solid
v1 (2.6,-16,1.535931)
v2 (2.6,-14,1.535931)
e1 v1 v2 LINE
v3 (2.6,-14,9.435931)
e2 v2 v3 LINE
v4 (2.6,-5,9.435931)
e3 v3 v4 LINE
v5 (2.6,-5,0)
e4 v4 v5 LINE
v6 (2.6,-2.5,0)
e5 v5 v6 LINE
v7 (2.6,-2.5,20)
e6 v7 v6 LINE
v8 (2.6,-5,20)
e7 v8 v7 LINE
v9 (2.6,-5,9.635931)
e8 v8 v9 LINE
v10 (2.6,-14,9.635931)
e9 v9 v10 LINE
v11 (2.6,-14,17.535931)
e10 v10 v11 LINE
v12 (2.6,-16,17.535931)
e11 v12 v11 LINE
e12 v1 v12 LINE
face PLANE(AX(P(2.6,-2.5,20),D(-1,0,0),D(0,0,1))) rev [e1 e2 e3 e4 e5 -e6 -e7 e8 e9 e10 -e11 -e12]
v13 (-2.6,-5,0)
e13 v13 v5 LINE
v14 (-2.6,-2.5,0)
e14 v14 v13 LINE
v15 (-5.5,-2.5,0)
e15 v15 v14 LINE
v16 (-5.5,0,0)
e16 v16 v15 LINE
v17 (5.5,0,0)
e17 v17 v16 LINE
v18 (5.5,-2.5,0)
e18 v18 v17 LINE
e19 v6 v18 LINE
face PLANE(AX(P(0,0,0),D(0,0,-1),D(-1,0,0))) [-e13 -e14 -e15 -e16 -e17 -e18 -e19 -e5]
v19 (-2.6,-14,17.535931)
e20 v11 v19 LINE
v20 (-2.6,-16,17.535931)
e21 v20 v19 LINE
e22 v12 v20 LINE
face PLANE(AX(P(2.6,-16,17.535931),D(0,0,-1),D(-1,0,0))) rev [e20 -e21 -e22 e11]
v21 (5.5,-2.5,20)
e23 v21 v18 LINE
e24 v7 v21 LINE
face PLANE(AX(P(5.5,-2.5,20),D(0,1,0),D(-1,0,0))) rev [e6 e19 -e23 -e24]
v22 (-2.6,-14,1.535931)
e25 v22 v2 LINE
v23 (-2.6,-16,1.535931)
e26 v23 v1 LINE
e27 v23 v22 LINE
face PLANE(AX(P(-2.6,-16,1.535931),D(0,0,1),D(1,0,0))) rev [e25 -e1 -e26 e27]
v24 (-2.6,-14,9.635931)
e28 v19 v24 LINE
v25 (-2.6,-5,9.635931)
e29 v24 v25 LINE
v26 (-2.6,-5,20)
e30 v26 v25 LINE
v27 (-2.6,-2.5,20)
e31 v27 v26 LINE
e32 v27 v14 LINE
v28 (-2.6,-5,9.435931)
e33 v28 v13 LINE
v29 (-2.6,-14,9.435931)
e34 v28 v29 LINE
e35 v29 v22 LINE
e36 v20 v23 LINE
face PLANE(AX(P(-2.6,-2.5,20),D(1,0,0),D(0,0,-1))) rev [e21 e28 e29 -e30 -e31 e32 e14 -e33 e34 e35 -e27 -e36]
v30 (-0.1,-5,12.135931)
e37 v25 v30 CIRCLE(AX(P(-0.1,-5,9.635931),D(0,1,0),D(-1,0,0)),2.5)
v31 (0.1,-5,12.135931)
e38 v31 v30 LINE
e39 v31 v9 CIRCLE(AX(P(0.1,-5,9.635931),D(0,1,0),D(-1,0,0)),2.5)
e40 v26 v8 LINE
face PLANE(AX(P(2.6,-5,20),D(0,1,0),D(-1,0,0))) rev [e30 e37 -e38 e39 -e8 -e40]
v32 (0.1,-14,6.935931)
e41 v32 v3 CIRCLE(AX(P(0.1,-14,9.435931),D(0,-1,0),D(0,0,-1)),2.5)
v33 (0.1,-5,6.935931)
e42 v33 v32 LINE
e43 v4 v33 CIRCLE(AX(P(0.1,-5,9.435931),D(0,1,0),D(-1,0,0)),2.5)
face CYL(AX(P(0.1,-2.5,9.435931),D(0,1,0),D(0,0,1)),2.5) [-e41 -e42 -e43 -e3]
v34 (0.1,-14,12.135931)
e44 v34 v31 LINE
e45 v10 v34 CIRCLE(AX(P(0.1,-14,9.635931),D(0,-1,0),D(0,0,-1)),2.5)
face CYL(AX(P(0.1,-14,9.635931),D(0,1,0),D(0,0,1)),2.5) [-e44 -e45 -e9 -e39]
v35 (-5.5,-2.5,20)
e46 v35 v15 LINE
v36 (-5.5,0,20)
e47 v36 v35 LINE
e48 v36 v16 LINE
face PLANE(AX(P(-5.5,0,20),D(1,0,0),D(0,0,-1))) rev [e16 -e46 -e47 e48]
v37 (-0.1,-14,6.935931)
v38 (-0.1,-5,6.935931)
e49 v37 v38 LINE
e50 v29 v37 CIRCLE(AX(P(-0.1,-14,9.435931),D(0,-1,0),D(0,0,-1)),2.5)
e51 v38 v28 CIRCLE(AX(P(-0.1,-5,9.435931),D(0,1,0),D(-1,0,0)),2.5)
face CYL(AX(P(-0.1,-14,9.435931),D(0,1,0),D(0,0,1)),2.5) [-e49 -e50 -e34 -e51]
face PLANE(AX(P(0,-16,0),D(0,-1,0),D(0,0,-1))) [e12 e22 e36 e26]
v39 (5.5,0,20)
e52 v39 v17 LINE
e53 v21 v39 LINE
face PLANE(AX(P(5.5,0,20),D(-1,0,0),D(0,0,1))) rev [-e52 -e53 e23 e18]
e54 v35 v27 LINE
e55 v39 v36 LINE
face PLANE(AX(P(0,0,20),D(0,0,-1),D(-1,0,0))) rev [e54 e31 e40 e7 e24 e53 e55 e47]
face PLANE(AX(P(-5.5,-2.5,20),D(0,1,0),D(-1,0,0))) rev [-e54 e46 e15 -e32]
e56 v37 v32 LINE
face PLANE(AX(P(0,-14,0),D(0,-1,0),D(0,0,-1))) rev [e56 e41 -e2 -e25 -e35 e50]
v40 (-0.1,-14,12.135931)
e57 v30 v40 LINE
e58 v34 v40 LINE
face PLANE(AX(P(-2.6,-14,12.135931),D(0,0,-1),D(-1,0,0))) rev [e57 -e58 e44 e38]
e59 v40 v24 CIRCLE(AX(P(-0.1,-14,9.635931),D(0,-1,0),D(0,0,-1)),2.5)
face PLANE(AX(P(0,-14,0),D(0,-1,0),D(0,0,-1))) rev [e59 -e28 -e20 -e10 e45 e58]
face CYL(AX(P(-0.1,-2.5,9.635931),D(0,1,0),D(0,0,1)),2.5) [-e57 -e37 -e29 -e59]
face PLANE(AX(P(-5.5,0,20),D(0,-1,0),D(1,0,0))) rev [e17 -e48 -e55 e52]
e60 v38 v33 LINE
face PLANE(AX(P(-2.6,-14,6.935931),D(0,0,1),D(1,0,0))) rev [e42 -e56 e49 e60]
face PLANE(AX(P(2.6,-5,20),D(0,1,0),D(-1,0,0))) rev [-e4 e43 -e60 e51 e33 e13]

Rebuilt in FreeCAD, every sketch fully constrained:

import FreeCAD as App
import Part
import Sketcher

V = App.Vector
Q = App.Units.Quantity


def edges_at(feature, points):
    """Names of the edges that pass closest to the given points."""
    edges = feature.Shape.Edges
    near = lambda p: min(range(len(edges)), key=lambda i: edges[i].distToShape(Part.Vertex(*p))[0])
    return sorted({f"Edge{near(p) + 1}" for p in points})

doc = App.newDocument("Part")
body = doc.addObject("PartDesign::Body", "Body")

# Sketch on XY plane
sketch1 = doc.addObject("Sketcher::SketchObject", "Sketch")
body.addObject(sketch1)
sketch1.AttachmentSupport = (doc.XY_Plane, [""])
sketch1.MapMode = "FlatFace"
sketch1.addGeometry([
    Part.LineSegment(V(5.5, 0, 0), V(-5.5, 0, 0)),  # 0
    Part.LineSegment(V(-5.5, 0, 0), V(-5.5, -2.5, 0)),  # 1
    Part.LineSegment(V(-5.5, -2.5, 0), V(-2.6, -2.5, 0)),  # 2
    Part.LineSegment(V(-2.6, -2.5, 0), V(-2.6, -5, 0)),  # 3
    Part.LineSegment(V(-2.6, -5, 0), V(2.6, -5, 0)),  # 4
    Part.LineSegment(V(2.6, -5, 0), V(2.6, -2.5, 0)),  # 5
    Part.LineSegment(V(2.6, -2.5, 0), V(5.5, -2.5, 0)),  # 6
    Part.LineSegment(V(5.5, -2.5, 0), V(5.5, 0, 0)),  # 7
], False)
sketch1.addConstraint([
    Sketcher.Constraint("Coincident", 0, 2, 1, 1),
    Sketcher.Constraint("Coincident", 1, 2, 2, 1),
    Sketcher.Constraint("Coincident", 2, 2, 3, 1),
    Sketcher.Constraint("Coincident", 3, 2, 4, 1),
    Sketcher.Constraint("Coincident", 4, 2, 5, 1),
    Sketcher.Constraint("Coincident", 5, 2, 6, 1),
    Sketcher.Constraint("Coincident", 6, 2, 7, 1),
    Sketcher.Constraint("Coincident", 7, 2, 0, 1),
    Sketcher.Constraint("Horizontal", 0),
    Sketcher.Constraint("Vertical", 1),
    Sketcher.Constraint("Horizontal", 2),
    Sketcher.Constraint("Vertical", 3),
    Sketcher.Constraint("Horizontal", 4),
    Sketcher.Constraint("Vertical", 5),
    Sketcher.Constraint("Horizontal", 6),
    Sketcher.Constraint("Vertical", 7),
    Sketcher.Constraint("Symmetric", 0, 2, 7, 2, -1, 1),
    Sketcher.Constraint("Symmetric", 2, 2, 5, 2, -2),
    Sketcher.Constraint("Equal", 1, 3),
    Sketcher.Constraint("DistanceX", 0, 2, 0, 1, Q("11 mm")),
    Sketcher.Constraint("DistanceX", 2, 1, 2, 2, Q("2.9 mm")),
    Sketcher.Constraint("DistanceY", 1, 2, 1, 1, Q("2.5 mm")),
])
pad1 = doc.addObject("PartDesign::Pad", "Pad")
body.addObject(pad1)
pad1.Profile = sketch1
pad1.Length = 20

# Sketch on XZ plane
sketch2 = doc.addObject("Sketcher::SketchObject", "Sketch001")
body.addObject(sketch2)
sketch2.AttachmentSupport = (doc.XZ_Plane, [""])
sketch2.MapMode = "FlatFace"
sketch2.AttachmentOffset = App.Placement(V(0, 0, 5), App.Rotation())
sketch2.addGeometry([
    Part.LineSegment(V(-3, 12, 0), V(-3, 7, 0)),
    Part.LineSegment(V(-3, 7, 0), V(3, 7, 0)),
    Part.LineSegment(V(3, 7, 0), V(3, 12, 0)),
    Part.LineSegment(V(3, 12, 0), V(-3, 12, 0)),
], False)
sketch2.addConstraint([
    Sketcher.Constraint("Coincident", 0, 2, 1, 1),
    Sketcher.Constraint("Coincident", 1, 2, 2, 1),
    Sketcher.Constraint("Coincident", 2, 2, 3, 1),
    Sketcher.Constraint("Coincident", 3, 2, 0, 1),
    Sketcher.Constraint("Vertical", 0),
    Sketcher.Constraint("Horizontal", 1),
    Sketcher.Constraint("Vertical", 2),
    Sketcher.Constraint("Horizontal", 3),
    Sketcher.Constraint("Equal", 3, 0),
    Sketcher.Constraint("DistanceX", 1, 1, 1, 2, Q("5.2 mm")),
    Sketcher.Constraint("DistanceX", 0, 2, -1, 1, Q("2.6 mm")),
    Sketcher.Constraint("DistanceY", -1, 1, 0, 2, Q("6.935931 mm")),
])
pad2 = doc.addObject("PartDesign::Pad", "Pad001")
body.addObject(pad2)
pad2.Profile = sketch2
pad2.Length = 9

# Sketch on XZ plane
sketch3 = doc.addObject("Sketcher::SketchObject", "Sketch002")
body.addObject(sketch3)
sketch3.AttachmentSupport = (doc.XZ_Plane, [""])
sketch3.MapMode = "FlatFace"
sketch3.AttachmentOffset = App.Placement(V(0, 0, 14), App.Rotation())
sketch3.addGeometry([
    Part.LineSegment(V(-3, 18, 0), V(-3, 2, 0)),
    Part.LineSegment(V(-3, 2, 0), V(3, 2, 0)),
    Part.LineSegment(V(3, 2, 0), V(3, 18, 0)),
    Part.LineSegment(V(3, 18, 0), V(-3, 18, 0)),
], False)
sketch3.addConstraint([
    Sketcher.Constraint("Coincident", 0, 2, 1, 1),
    Sketcher.Constraint("Coincident", 1, 2, 2, 1),
    Sketcher.Constraint("Coincident", 2, 2, 3, 1),
    Sketcher.Constraint("Coincident", 3, 2, 0, 1),
    Sketcher.Constraint("Vertical", 0),
    Sketcher.Constraint("Horizontal", 1),
    Sketcher.Constraint("Vertical", 2),
    Sketcher.Constraint("Horizontal", 3),
    Sketcher.Constraint("DistanceY", 0, 2, 0, 1, Q("16 mm")),
    Sketcher.Constraint("DistanceX", 1, 1, 1, 2, Q("5.2 mm")),
    Sketcher.Constraint("DistanceX", 0, 2, -1, 1, Q("2.6 mm")),
    Sketcher.Constraint("DistanceY", -1, 1, 0, 2, Q("1.535931 mm")),
])
pad3 = doc.addObject("PartDesign::Pad", "Pad002")
body.addObject(pad3)
pad3.Profile = sketch3
pad3.Length = 2
doc.recompute()

fillet = doc.addObject("PartDesign::Fillet", "Fillet")
body.addObject(fillet)
fillet.Base = (pad3, edges_at(pad3, [
    (-2.6, -9.5, 12.136),
    (-2.6, -9.5, 6.936),
    (2.6, -9.5, 6.936),
    (2.6, -9.5, 12.136),
]))
fillet.Radius = 2.5

doc.recompute()
